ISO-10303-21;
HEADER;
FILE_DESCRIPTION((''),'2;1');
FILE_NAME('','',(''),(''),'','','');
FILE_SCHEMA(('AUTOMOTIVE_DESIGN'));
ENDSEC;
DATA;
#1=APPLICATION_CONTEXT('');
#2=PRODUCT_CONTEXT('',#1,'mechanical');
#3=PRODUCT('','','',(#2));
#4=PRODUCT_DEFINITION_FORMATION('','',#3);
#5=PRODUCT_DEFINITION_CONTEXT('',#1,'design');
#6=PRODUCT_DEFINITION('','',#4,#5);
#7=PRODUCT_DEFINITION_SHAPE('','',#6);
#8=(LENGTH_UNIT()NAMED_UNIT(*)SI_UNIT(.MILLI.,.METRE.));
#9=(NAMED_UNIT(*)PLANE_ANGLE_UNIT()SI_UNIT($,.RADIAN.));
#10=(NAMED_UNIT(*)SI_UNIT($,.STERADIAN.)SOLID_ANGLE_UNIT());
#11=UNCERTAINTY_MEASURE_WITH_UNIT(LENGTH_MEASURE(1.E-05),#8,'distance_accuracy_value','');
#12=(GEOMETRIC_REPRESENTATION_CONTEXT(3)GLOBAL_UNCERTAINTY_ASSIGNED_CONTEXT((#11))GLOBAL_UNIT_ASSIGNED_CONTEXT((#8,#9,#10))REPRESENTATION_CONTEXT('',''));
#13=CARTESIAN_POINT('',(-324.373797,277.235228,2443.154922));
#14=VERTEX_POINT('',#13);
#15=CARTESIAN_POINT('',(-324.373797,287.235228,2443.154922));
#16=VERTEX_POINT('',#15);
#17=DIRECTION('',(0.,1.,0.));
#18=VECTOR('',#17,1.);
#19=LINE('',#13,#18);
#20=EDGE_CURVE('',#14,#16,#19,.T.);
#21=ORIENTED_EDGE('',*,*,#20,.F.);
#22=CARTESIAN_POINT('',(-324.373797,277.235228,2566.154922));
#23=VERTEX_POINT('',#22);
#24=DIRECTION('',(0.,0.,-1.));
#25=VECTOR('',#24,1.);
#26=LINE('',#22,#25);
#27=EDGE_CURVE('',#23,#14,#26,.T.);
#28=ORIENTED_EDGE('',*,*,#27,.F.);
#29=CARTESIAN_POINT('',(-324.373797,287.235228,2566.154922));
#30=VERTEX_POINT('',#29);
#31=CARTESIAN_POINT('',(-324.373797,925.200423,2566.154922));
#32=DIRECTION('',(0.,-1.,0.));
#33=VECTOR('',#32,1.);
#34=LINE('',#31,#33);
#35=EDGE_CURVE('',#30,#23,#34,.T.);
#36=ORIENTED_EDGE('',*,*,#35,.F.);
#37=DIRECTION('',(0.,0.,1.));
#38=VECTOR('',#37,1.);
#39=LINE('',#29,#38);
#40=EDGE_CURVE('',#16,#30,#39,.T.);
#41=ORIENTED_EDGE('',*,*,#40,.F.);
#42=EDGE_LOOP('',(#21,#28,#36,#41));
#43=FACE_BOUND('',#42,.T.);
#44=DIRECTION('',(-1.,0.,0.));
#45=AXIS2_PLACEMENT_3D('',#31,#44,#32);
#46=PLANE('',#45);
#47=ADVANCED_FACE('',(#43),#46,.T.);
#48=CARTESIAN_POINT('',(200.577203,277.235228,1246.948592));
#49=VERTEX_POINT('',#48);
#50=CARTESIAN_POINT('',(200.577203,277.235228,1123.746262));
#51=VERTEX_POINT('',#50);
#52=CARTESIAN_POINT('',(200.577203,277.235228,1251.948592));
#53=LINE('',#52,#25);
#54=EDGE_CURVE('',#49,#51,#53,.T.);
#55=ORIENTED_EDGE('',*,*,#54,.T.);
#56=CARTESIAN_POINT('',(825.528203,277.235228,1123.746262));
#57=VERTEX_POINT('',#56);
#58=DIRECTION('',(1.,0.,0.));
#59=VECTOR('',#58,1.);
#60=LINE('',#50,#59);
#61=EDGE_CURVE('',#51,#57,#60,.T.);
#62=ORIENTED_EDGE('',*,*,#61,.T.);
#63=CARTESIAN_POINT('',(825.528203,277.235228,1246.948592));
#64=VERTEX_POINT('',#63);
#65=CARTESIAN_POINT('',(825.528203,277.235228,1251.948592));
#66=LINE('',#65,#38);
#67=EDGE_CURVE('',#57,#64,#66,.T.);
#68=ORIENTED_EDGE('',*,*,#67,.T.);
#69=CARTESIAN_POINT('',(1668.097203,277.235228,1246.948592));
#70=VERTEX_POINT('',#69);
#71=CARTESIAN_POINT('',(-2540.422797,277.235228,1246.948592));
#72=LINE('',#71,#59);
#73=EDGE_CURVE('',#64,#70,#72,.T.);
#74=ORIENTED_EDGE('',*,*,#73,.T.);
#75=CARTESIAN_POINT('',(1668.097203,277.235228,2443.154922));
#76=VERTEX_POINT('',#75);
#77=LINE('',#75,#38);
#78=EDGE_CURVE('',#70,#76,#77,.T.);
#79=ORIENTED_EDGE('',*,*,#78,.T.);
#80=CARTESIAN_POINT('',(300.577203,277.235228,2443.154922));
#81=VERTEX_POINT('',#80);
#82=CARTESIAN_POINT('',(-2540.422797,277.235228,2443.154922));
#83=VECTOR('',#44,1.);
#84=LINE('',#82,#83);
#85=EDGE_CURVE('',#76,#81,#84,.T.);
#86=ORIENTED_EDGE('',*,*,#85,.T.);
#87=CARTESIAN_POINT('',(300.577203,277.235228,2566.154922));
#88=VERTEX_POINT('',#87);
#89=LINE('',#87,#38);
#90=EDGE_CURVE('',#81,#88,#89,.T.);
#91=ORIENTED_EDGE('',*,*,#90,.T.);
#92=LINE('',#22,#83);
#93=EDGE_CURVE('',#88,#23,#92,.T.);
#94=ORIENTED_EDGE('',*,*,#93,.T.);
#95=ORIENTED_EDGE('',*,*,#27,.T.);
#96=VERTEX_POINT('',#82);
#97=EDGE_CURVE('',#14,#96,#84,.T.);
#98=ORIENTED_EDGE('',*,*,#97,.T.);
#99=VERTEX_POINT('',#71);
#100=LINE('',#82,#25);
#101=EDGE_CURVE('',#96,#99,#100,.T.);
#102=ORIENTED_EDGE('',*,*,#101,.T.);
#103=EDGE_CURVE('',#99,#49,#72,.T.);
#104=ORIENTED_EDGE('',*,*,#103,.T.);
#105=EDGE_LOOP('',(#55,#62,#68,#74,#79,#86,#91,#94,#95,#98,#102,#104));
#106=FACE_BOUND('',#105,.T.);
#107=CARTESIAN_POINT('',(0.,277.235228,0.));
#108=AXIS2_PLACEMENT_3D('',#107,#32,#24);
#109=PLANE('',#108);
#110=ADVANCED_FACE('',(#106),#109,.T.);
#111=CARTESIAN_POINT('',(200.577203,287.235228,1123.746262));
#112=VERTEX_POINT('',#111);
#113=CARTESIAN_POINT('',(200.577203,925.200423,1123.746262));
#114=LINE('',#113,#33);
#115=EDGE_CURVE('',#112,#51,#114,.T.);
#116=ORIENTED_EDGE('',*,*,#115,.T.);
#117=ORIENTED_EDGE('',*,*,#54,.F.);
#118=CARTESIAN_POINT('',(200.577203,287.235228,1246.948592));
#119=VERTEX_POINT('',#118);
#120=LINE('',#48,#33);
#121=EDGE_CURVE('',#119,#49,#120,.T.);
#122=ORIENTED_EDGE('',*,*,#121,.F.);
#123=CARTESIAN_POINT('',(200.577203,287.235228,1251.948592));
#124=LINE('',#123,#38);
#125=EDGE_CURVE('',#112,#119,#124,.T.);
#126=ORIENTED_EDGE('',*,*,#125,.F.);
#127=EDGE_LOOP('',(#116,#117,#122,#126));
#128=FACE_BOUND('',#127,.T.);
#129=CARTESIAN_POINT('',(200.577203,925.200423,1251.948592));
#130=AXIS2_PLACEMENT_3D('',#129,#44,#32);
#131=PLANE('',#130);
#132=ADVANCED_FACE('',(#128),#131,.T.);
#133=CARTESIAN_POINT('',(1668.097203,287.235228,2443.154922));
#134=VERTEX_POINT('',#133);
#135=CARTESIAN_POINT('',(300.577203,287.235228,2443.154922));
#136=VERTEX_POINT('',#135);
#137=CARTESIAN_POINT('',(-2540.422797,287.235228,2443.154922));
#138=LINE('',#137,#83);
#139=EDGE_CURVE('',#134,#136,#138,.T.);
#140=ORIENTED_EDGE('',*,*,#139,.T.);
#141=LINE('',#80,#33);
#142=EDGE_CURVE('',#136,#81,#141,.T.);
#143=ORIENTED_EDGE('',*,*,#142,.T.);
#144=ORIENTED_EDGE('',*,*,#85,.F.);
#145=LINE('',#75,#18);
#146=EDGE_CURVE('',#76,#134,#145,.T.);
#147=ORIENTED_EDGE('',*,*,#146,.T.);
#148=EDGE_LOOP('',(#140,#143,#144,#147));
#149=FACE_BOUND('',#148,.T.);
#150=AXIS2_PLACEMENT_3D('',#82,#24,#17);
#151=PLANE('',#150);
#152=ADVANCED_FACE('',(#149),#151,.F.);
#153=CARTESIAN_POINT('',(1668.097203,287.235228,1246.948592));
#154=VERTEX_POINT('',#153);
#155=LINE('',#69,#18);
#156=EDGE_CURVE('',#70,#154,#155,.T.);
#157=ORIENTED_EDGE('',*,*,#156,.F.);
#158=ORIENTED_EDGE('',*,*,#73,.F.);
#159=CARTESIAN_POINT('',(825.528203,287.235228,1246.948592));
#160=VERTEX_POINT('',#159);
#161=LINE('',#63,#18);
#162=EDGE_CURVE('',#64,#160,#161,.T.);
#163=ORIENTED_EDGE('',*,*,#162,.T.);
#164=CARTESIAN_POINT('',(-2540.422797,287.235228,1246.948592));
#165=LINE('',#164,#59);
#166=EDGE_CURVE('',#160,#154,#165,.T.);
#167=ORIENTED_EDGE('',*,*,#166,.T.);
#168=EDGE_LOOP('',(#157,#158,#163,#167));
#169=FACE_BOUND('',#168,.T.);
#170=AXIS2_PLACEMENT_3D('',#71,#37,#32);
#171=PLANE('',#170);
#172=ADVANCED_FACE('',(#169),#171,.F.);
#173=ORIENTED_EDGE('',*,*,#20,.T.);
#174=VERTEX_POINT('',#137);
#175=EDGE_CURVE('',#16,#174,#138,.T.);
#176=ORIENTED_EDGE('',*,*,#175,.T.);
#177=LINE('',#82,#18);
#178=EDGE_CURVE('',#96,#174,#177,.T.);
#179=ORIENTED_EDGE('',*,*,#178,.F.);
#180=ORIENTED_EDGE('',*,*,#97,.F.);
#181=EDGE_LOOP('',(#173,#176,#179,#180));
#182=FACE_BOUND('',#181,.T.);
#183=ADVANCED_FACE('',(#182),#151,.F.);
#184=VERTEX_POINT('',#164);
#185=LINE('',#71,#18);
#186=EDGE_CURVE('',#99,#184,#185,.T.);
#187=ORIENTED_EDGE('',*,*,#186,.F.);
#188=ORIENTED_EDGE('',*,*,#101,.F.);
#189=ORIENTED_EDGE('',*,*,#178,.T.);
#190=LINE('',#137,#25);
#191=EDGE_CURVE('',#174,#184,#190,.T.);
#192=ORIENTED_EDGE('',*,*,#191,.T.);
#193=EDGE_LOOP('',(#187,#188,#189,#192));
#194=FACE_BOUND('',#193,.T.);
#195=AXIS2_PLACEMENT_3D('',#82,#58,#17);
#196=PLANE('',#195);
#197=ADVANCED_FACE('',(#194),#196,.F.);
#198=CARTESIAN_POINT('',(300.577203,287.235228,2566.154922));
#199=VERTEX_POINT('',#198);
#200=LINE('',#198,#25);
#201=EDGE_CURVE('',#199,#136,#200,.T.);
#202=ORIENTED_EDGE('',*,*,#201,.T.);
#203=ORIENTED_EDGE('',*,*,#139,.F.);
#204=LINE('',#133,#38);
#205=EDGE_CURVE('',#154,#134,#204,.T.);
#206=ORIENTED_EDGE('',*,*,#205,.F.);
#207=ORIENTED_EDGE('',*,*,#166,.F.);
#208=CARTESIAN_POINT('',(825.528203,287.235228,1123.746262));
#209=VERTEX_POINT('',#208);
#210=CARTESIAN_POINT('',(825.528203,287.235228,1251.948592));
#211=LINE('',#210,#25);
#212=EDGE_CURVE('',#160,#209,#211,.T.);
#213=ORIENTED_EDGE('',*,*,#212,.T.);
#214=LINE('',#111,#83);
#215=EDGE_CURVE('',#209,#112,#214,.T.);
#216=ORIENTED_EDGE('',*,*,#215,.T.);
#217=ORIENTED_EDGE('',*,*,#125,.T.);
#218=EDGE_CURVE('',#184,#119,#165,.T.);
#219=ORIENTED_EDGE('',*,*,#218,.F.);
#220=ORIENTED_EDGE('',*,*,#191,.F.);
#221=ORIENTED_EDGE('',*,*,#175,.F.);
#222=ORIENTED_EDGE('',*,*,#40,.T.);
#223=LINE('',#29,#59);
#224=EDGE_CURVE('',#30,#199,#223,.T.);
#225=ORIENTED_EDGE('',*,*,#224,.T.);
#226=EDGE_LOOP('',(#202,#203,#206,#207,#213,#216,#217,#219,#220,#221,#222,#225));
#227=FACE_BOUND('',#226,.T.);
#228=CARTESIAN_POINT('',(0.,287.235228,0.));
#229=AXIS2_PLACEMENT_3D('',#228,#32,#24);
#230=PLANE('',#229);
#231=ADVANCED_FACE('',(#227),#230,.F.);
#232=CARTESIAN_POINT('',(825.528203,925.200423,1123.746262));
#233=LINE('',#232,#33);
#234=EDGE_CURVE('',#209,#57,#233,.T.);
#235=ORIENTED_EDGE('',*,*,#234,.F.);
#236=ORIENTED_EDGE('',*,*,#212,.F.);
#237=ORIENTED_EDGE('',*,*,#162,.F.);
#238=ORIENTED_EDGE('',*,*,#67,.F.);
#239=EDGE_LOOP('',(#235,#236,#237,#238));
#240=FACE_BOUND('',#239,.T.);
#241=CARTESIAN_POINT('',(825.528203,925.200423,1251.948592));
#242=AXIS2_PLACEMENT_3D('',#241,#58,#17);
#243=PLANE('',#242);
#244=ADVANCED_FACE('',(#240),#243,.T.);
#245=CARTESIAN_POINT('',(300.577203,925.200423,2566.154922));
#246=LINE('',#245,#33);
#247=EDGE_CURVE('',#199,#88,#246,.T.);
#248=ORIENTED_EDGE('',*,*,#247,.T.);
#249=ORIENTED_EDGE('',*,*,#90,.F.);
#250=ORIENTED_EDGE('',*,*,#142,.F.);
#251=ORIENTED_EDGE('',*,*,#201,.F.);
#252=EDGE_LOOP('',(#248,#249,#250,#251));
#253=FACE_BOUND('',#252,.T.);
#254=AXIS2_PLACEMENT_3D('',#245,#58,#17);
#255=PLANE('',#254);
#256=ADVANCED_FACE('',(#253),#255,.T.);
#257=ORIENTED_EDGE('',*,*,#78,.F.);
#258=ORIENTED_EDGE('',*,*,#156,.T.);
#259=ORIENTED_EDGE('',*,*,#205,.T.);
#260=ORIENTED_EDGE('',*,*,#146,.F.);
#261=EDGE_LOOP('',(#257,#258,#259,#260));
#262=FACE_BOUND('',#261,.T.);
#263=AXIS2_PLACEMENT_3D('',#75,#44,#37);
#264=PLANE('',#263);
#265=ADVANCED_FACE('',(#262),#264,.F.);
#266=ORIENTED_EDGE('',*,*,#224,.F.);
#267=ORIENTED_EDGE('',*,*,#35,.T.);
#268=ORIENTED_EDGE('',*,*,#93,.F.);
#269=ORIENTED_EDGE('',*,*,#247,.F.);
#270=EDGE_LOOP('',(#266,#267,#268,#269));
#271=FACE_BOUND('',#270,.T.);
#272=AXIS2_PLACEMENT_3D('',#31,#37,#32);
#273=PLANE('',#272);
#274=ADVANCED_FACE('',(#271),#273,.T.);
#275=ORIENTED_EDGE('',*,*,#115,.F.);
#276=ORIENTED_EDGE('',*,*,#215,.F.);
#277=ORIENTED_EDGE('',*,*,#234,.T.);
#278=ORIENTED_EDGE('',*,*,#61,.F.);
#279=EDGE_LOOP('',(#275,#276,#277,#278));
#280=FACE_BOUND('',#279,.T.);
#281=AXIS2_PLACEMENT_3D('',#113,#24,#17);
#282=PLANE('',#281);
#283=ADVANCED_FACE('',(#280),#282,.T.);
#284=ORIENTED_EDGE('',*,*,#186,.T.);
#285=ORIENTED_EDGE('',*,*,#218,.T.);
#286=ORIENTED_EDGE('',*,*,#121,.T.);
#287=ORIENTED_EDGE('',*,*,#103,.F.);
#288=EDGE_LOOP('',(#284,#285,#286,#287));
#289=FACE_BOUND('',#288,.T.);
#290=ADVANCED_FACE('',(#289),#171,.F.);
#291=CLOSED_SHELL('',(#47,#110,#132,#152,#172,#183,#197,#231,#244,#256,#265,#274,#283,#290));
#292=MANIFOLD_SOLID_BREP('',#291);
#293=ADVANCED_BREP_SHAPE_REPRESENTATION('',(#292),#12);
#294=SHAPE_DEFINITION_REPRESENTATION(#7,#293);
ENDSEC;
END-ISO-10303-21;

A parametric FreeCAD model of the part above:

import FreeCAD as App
import Part
import Sketcher

V = App.Vector

doc = App.newDocument("Part")
body = doc.addObject("PartDesign::Body", "Body")

# Sketch on XZ plane
sketch1 = body.newObject("Sketcher::SketchObject", "Sketch")
sketch1.AttachmentSupport = (doc.getObject("XZ_Plane"), [""])
sketch1.MapMode = "FlatFace"
sketch1.AttachmentOffset = App.Placement(V(0, 0, -287.235228), App.Rotation())
sketch1.addGeometry([
    Part.LineSegment(V(-2540, 2443, 0), V(-2540, 1247, 0)),
    Part.LineSegment(V(-2540, 1247, 0), V(1668, 1247, 0)),
    Part.LineSegment(V(1668, 1247, 0), V(1668, 2443, 0)),
    Part.LineSegment(V(1668, 2443, 0), V(-2540, 2443, 0)),
], False)
sketch1.addConstraint([
    Sketcher.Constraint("Coincident", 0, 2, 1, 1),
    Sketcher.Constraint("Coincident", 1, 2, 2, 1),
    Sketcher.Constraint("Coincident", 2, 2, 3, 1),
    Sketcher.Constraint("Coincident", 3, 2, 0, 1),
    Sketcher.Constraint("Vertical", 0),
    Sketcher.Constraint("Horizontal", 1),
    Sketcher.Constraint("Vertical", 2),
    Sketcher.Constraint("Horizontal", 3),
    Sketcher.Constraint("DistanceX", 1, 1, 1, 2, 4208.52),
    Sketcher.Constraint("DistanceY", 0, 2, 0, 1, 1196.20633),
    Sketcher.Constraint("DistanceX", 0, 2, -1, 1, 2540.422797),
    Sketcher.Constraint("DistanceY", -1, 1, 0, 2, 1246.948592),
])
pad1 = body.newObject("PartDesign::Pad", "Pad")
pad1.Profile = sketch1
pad1.Length = 10

# Sketch on XZ plane
sketch2 = body.newObject("Sketcher::SketchObject", "Sketch001")
sketch2.AttachmentSupport = (doc.getObject("XZ_Plane"), [""])
sketch2.MapMode = "FlatFace"
sketch2.AttachmentOffset = App.Placement(V(0, 0, -277.235228), App.Rotation())
sketch2.addGeometry([
    Part.LineSegment(V(201, 1252, 0), V(201, 1124, 0)),  # 0
    Part.LineSegment(V(201, 1124, 0), V(826, 1124, 0)),  # 1
    Part.LineSegment(V(826, 1124, 0), V(826, 1252, 0)),  # 2
    Part.LineSegment(V(826, 1252, 0), V(201, 1252, 0)),  # 3
    Part.LineSegment(V(-324, 2566, 0), V(-324, 2438, 0)),  # 4
    Part.LineSegment(V(-324, 2438, 0), V(301, 2438, 0)),  # 5
    Part.LineSegment(V(301, 2438, 0), V(301, 2566, 0)),  # 6
    Part.LineSegment(V(301, 2566, 0), V(-324, 2566, 0)),  # 7
], False)
sketch2.addConstraint([
    Sketcher.Constraint("Coincident", 0, 2, 1, 1),
    Sketcher.Constraint("Coincident", 1, 2, 2, 1),
    Sketcher.Constraint("Coincident", 2, 2, 3, 1),
    Sketcher.Constraint("Coincident", 3, 2, 0, 1),
    Sketcher.Constraint("Coincident", 4, 2, 5, 1),
    Sketcher.Constraint("Coincident", 5, 2, 6, 1),
    Sketcher.Constraint("Coincident", 6, 2, 7, 1),
    Sketcher.Constraint("Coincident", 7, 2, 4, 1),
    Sketcher.Constraint("Vertical", 0),
    Sketcher.Constraint("Horizontal", 1),
    Sketcher.Constraint("Vertical", 2),
    Sketcher.Constraint("Horizontal", 3),
    Sketcher.Constraint("Vertical", 4),
    Sketcher.Constraint("Horizontal", 5),
    Sketcher.Constraint("Vertical", 6),
    Sketcher.Constraint("Horizontal", 7),
    Sketcher.Constraint("Equal", 3, 5),
    Sketcher.Constraint("DistanceY", 4, 2, 4, 1, 128.0),
    Sketcher.Constraint("DistanceX", 3, 2, 5, 2, 100.0),
    Sketcher.Constraint("DistanceX", 1, 1, 1, 2, 624.951),
    Sketcher.Constraint("DistanceY", 0, 2, 0, 1, 128.20233),
    Sketcher.Constraint("DistanceY", 3, 2, 4, 2, 1186.20633),
    Sketcher.Constraint("DistanceX", -1, 1, 0, 2, 200.577203),
    Sketcher.Constraint("DistanceY", -1, 1, 0, 2, 1123.746262),
])
pad2 = body.newObject("PartDesign::Pad", "Pad001")
pad2.Profile = sketch2
pad2.Length = 10
pad2.Reversed = True

doc.recompute()
